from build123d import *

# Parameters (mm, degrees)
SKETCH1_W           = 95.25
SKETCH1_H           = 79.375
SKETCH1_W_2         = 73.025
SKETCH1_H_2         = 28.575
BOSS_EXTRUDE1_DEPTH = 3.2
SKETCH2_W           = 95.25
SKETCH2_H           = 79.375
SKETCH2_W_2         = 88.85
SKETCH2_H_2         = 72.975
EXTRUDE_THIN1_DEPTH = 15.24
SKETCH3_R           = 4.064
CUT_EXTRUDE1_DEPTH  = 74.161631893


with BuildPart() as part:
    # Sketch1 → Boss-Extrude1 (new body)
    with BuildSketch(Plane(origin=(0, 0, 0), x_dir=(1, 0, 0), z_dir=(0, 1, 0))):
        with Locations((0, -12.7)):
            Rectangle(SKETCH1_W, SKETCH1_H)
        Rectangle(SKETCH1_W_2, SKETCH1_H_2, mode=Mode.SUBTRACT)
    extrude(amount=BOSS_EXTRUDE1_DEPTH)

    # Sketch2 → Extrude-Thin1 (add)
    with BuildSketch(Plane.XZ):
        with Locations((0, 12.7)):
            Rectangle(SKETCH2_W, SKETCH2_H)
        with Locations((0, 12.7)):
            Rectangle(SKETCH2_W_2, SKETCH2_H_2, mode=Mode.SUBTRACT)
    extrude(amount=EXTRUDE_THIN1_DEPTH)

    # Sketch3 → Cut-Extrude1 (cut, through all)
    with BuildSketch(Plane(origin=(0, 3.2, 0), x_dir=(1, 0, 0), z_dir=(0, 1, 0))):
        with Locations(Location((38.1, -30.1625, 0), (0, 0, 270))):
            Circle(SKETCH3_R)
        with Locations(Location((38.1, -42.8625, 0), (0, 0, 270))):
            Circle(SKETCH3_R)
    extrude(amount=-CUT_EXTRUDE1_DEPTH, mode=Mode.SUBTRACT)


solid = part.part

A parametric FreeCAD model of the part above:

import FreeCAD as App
import Part
import Sketcher
from FreeCAD import Vector
Q = App.Units.Quantity

doc = App.newDocument("Part")
params = doc.addObject("Spreadsheet::Sheet", "Params")
for row, (alias, value) in enumerate([
    ("sketch1_width", "3.75 in"),
    ("sketch1_width2", "2.875 in"),
    ("sketch1_height", "3.125 in"),
    ("pad1_length", "3.2 mm"),
    ("sketch2_width", "3.75 in"),
    ("sketch2_height", "3.125 in"),
    ("pad2_length", "0.6 in"),
    ("sketch3_diameter", "0.32 in"),
], start=1):
    params.set(f"A{row}", alias)
    params.set(f"B{row}", "=" + value)
    params.setAlias(f"B{row}", alias)

body = doc.addObject("PartDesign::Body", "Body")

# Sketch on XZ plane
sketch1 = doc.addObject("Sketcher::SketchObject", "Sketch")
body.addObject(sketch1)
sketch1.AttachmentSupport = (doc.XZ_Plane, [""])
sketch1.MapMode = "FlatFace"
sketch1.addGeometry([
    Part.LineSegment(Vector(-47.625, -26.9875, 0), Vector(-47.625, 52.3875, 0)),  # 0
    Part.LineSegment(Vector(-47.625, 52.3875, 0), Vector(47.625, 52.3875, 0)),  # 1
    Part.LineSegment(Vector(47.625, 52.3875, 0), Vector(47.625, -26.9875, 0)),  # 2
    Part.LineSegment(Vector(47.625, -26.9875, 0), Vector(-47.625, -26.9875, 0)),  # 3
    Part.LineSegment(Vector(36.5125, 14.2875, 0), Vector(-36.5125, 14.2875, 0)),  # 4
    Part.LineSegment(Vector(-36.5125, 14.2875, 0), Vector(-36.5125, -14.2875, 0)),  # 5
    Part.LineSegment(Vector(-36.5125, -14.2875, 0), Vector(36.5125, -14.2875, 0)),  # 6
    Part.LineSegment(Vector(36.5125, -14.2875, 0), Vector(36.5125, 14.2875, 0)),  # 7
], False)
sketch1.addConstraint([
    Sketcher.Constraint("Coincident", 0, 2, 1, 1),
    Sketcher.Constraint("Coincident", 1, 2, 2, 1),
    Sketcher.Constraint("Coincident", 2, 2, 3, 1),
    Sketcher.Constraint("Coincident", 3, 2, 0, 1),
    Sketcher.Constraint("Coincident", 4, 2, 5, 1),
    Sketcher.Constraint("Coincident", 5, 2, 6, 1),
    Sketcher.Constraint("Coincident", 6, 2, 7, 1),
    Sketcher.Constraint("Coincident", 7, 2, 4, 1),
    Sketcher.Constraint("Vertical", 0),
    Sketcher.Constraint("Horizontal", 1),
    Sketcher.Constraint("Vertical", 2),
    Sketcher.Constraint("Horizontal", 3),
    Sketcher.Constraint("Horizontal", 4),
    Sketcher.Constraint("Vertical", 5),
    Sketcher.Constraint("Horizontal", 6),
    Sketcher.Constraint("Vertical", 7),
    Sketcher.Constraint("Symmetric", 4, 2, 6, 2, -1, 1),
    Sketcher.Constraint("DistanceX", 1, 1, 1, 2, Q("3.75 in")),
    Sketcher.Constraint("DistanceY", 4, 2, 0, 2, Q("1.5 in")),
    Sketcher.Constraint("DistanceY", 3, 2, 5, 2, Q("0.5 in")),
    Sketcher.Constraint("DistanceX", 4, 2, 4, 1, Q("2.875 in")),
    Sketcher.Constraint("DistanceY", 0, 1, 0, 2, Q("3.125 in")),
    Sketcher.Constraint("DistanceX", 0, 2, -1, 1, Q("1.875 in")),
])
sketch1.setExpression("Constraints[17]", "Params.sketch1_width")
sketch1.setExpression("Constraints[20]", "Params.sketch1_width2")
sketch1.setExpression("Constraints[21]", "Params.sketch1_height")
pad1 = doc.addObject("PartDesign::Pad", "Pad")
body.addObject(pad1)
pad1.Profile = sketch1
pad1.setExpression("Length", "Params.pad1_length")
pad1.Reversed = True

# Sketch on XZ plane
sketch2 = doc.addObject("Sketcher::SketchObject", "Sketch001")
body.addObject(sketch2)
sketch2.AttachmentSupport = (doc.XZ_Plane, [""])
sketch2.MapMode = "FlatFace"
sketch2.addGeometry([
    Part.LineSegment(Vector(-47.625, 52.3875, 0), Vector(-47.625, -26.9875, 0)),  # 0
    Part.LineSegment(Vector(-47.625, -26.9875, 0), Vector(47.625, -26.9875, 0)),  # 1
    Part.LineSegment(Vector(47.625, -26.9875, 0), Vector(47.625, 52.3875, 0)),  # 2
    Part.LineSegment(Vector(47.625, 52.3875, 0), Vector(-47.625, 52.3875, 0)),  # 3
    Part.LineSegment(Vector(44.425, -23.7875, 0), Vector(-44.425, -23.7875, 0)),  # 4
    Part.LineSegment(Vector(-44.425, -23.7875, 0), Vector(-44.425, 49.1875, 0)),  # 5
    Part.LineSegment(Vector(-44.425, 49.1875, 0), Vector(44.425, 49.1875, 0)),  # 6
    Part.LineSegment(Vector(44.425, 49.1875, 0), Vector(44.425, -23.7875, 0)),  # 7
], False)
sketch2.addConstraint([
    Sketcher.Constraint("Coincident", 0, 2, 1, 1),
    Sketcher.Constraint("Coincident", 1, 2, 2, 1),
    Sketcher.Constraint("Coincident", 2, 2, 3, 1),
    Sketcher.Constraint("Coincident", 3, 2, 0, 1),
    Sketcher.Constraint("Coincident", 4, 2, 5, 1),
    Sketcher.Constraint("Coincident", 5, 2, 6, 1),
    Sketcher.Constraint("Coincident", 6, 2, 7, 1),
    Sketcher.Constraint("Coincident", 7, 2, 4, 1),
    Sketcher.Constraint("Vertical", 0),
    Sketcher.Constraint("Horizontal", 1),
    Sketcher.Constraint("Vertical", 2),
    Sketcher.Constraint("Horizontal", 3),
    Sketcher.Constraint("Horizontal", 4),
    Sketcher.Constraint("Vertical", 5),
    Sketcher.Constraint("Horizontal", 6),
    Sketcher.Constraint("Vertical", 7),
    Sketcher.Constraint("DistanceX", 1, 1, 1, 2, Q("3.75 in")),
    Sketcher.Constraint("DistanceY", 0, 2, 0, 1, Q("3.125 in")),
    Sketcher.Constraint("DistanceX", 0, 2, -1, 1, Q("1.875 in")),
    Sketcher.Constraint("DistanceY", 0, 2, -1, 1, Q("1.0625 in")),
    Sketcher.Constraint("DistanceX", 4, 2, 4, 1, Q("88.85 mm")),
    Sketcher.Constraint("DistanceY", 5, 1, 5, 2, Q("72.975 mm")),
    Sketcher.Constraint("DistanceX", 4, 2, -1, 1, Q("44.425 mm")),
    Sketcher.Constraint("DistanceY", 4, 2, -1, 1, Q("23.7875 mm")),
])
sketch2.setExpression("Constraints[16]", "Params.sketch2_width")
sketch2.setExpression("Constraints[17]", "Params.sketch2_height")
pad2 = doc.addObject("PartDesign::Pad", "Pad001")
body.addObject(pad2)
pad2.Profile = sketch2
pad2.setExpression("Length", "Params.pad2_length")

# Sketch on XZ plane
sketch3 = doc.addObject("Sketcher::SketchObject", "Sketch002")
body.addObject(sketch3)
sketch3.AttachmentSupport = (doc.XZ_Plane, [""])
sketch3.MapMode = "FlatFace"
sketch3.AttachmentOffset = App.Placement(Vector(0, 0, -3.2), App.Rotation())
sketch3.addGeometry([
    Part.Circle(Vector(38.1, 30.1625, 0), Vector(0, 0, 1), 4.064),
    Part.Circle(Vector(38.1, 42.8625, 0), Vector(0, 0, 1), 4.064),
], False)
sketch3.addConstraint([
    Sketcher.Constraint("Equal", 0, 1),
    Sketcher.Constraint("Vertical", 0, 3, 1, 3),
    Sketcher.Constraint("Diameter", 0, Q("0.32 in")),
    Sketcher.Constraint("DistanceX", -1, 1, 0, 3, Q("1.5 in")),
    Sketcher.Constraint("DistanceY", 0, 3, 1, 3, Q("0.5 in")),
    Sketcher.Constraint("DistanceY", -1, 1, 0, 3, Q("1.1875 in")),
])
sketch3.setExpression("Constraints[2]", "Params.sketch3_diameter")
pocket1 = doc.addObject("PartDesign::Pocket", "Pocket")
body.addObject(pocket1)
pocket1.Profile = sketch3
pocket1.Type = "ThroughAll"
pocket1.Reversed = True

doc.recompute()
